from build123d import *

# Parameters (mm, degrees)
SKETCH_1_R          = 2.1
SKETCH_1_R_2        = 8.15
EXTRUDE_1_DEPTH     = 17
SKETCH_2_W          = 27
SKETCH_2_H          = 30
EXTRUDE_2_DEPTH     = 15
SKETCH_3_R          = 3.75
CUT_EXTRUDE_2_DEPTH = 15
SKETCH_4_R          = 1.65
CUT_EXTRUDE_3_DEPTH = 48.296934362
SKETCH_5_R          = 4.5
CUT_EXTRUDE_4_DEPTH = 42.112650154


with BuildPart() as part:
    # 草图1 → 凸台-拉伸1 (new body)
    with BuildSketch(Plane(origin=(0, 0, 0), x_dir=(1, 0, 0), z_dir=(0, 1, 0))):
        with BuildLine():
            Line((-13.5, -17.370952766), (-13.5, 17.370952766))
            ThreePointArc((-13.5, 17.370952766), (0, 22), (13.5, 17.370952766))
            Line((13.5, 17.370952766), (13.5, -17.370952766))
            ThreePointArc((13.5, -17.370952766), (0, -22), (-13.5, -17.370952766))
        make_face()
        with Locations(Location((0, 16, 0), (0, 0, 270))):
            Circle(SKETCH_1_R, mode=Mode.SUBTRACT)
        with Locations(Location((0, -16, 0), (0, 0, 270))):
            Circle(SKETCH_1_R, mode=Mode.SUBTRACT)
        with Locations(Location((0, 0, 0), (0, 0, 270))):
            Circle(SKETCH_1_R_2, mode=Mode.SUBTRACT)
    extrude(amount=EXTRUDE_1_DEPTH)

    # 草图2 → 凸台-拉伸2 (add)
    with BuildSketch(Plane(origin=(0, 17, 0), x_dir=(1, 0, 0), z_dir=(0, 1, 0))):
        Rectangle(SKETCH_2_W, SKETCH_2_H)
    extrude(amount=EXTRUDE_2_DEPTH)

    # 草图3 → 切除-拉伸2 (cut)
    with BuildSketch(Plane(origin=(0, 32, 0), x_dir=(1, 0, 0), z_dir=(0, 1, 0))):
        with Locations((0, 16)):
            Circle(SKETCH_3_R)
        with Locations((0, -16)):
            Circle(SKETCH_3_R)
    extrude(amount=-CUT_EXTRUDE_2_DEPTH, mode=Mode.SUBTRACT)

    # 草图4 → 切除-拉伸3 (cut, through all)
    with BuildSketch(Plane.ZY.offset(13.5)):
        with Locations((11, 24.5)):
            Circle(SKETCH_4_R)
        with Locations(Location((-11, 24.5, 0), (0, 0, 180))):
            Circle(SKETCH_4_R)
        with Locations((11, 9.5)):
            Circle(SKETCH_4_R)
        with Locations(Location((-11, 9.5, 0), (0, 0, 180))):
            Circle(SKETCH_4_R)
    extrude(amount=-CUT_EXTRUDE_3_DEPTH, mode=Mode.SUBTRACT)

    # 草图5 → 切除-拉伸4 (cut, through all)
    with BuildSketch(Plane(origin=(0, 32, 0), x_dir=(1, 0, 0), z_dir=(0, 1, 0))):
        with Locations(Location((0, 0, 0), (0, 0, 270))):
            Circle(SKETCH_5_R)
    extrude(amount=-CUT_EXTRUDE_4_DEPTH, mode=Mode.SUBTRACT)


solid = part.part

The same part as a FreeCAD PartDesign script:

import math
import FreeCAD as App
import Part
import Sketcher
from FreeCAD import Vector
Q = App.Units.Quantity

doc = App.newDocument("Part")
body = doc.addObject("PartDesign::Body", "Body")

# Sketch on XZ plane
sketch1 = body.newObject("Sketcher::SketchObject", "Sketch")
sketch1.AttachmentSupport = (doc.getObject("XZ_Plane"), [""])
sketch1.MapMode = "FlatFace"
sketch1.addGeometry([
    Part.LineSegment(Vector(-13.5, -17.4, 0), Vector(-13.5, 17.4, 0)),  # 0
    Part.ArcOfCircle(Part.Circle(Vector(0, 0, 0), Vector(0, 0, 1), 22), math.radians(52), math.radians(128)),  # 1
    Part.LineSegment(Vector(13.5, 17.4, 0), Vector(13.5, -17.4, 0)),  # 2
    Part.ArcOfCircle(Part.Circle(Vector(0, 0, 0), Vector(0, 0, 1), 22), math.radians(-128), math.radians(-52)),  # 3
    Part.Circle(Vector(0, 16, 0), Vector(0, 0, 1), 2.1),  # 4
    Part.Circle(Vector(0, 0, 0), Vector(0, 0, 1), 8.2),  # 5
    Part.Circle(Vector(0, -16, 0), Vector(0, 0, 1), 2.1),  # 6
], False)
sketch1.addConstraint([
    Sketcher.Constraint("Coincident", 0, 2, 1, 2),
    Sketcher.Constraint("Coincident", 1, 1, 2, 1),
    Sketcher.Constraint("Coincident", 2, 2, 3, 2),
    Sketcher.Constraint("Coincident", 3, 1, 0, 1),
    Sketcher.Constraint("Vertical", 0),
    Sketcher.Constraint("Vertical", 2),
    Sketcher.Constraint("Coincident", 1, 3, -1, 1),
    Sketcher.Constraint("Coincident", 3, 3, -1, 1),
    Sketcher.Constraint("Coincident", 5, 3, -1, 1),
    Sketcher.Constraint("Equal", 1, 3),
    Sketcher.Constraint("Equal", 4, 6),
    Sketcher.Constraint("Symmetric", 4, 3, 6, 3, -1, 1),
    Sketcher.Constraint("PointOnObject", 4, 3, -2),
    Sketcher.Constraint("Horizontal", 0, 2, 1, 1),
    Sketcher.Constraint("Radius", 1, Q("22 mm")),
    Sketcher.Constraint("Diameter", 4, Q("4.2 mm")),
    Sketcher.Constraint("Diameter", 5, Q("16.3 mm")),
    Sketcher.Constraint("DistanceY", -1, 1, 4, 3, Q("16 mm")),
    Sketcher.Constraint("DistanceX", 0, 2, 1, 1, Q("27 mm")),
])
pad1 = body.newObject("PartDesign::Pad", "Pad")
pad1.Profile = sketch1
pad1.Length = 17
pad1.Reversed = True

# Sketch on XZ plane
sketch2 = body.newObject("Sketcher::SketchObject", "Sketch001")
sketch2.AttachmentSupport = (doc.getObject("XZ_Plane"), [""])
sketch2.MapMode = "FlatFace"
sketch2.AttachmentOffset = App.Placement(Vector(0, 0, -17), App.Rotation())
sketch2.addGeometry([
    Part.LineSegment(Vector(-14, -15, 0), Vector(-14, 15, 0)),
    Part.LineSegment(Vector(-14, 15, 0), Vector(14, 15, 0)),
    Part.LineSegment(Vector(14, 15, 0), Vector(14, -15, 0)),
    Part.LineSegment(Vector(14, -15, 0), Vector(-14, -15, 0)),
], False)
sketch2.addConstraint([
    Sketcher.Constraint("Coincident", 0, 2, 1, 1),
    Sketcher.Constraint("Coincident", 1, 2, 2, 1),
    Sketcher.Constraint("Coincident", 2, 2, 3, 1),
    Sketcher.Constraint("Coincident", 3, 2, 0, 1),
    Sketcher.Constraint("Vertical", 0),
    Sketcher.Constraint("Horizontal", 1),
    Sketcher.Constraint("Vertical", 2),
    Sketcher.Constraint("Horizontal", 3),
    Sketcher.Constraint("Symmetric", 0, 2, 2, 2, -1, 1),
    Sketcher.Constraint("DistanceX", 1, 1, 1, 2, Q("27 mm")),
    Sketcher.Constraint("DistanceY", 0, 1, 0, 2, Q("30 mm")),
])
pad2 = body.newObject("PartDesign::Pad", "Pad001")
pad2.Profile = sketch2
pad2.Length = 15
pad2.Reversed = True

# Sketch on XZ plane
sketch3 = body.newObject("Sketcher::SketchObject", "Sketch002")
sketch3.AttachmentSupport = (doc.getObject("XZ_Plane"), [""])
sketch3.MapMode = "FlatFace"
sketch3.AttachmentOffset = App.Placement(Vector(0, 0, -32), App.Rotation())
sketch3.addGeometry([
    Part.Circle(Vector(0, -16, 0), Vector(0, 0, 1), 3.8),
    Part.Circle(Vector(0, 16, 0), Vector(0, 0, 1), 3.8),
], False)
sketch3.addConstraint([
    Sketcher.Constraint("Equal", 0, 1),
    Sketcher.Constraint("Symmetric", 0, 3, 1, 3, -1, 1),
    Sketcher.Constraint("PointOnObject", 0, 3, -2),
    Sketcher.Constraint("Diameter", 0, Q("7.5 mm")),
    Sketcher.Constraint("DistanceY", 0, 3, -1, 1, Q("16 mm")),
])
pocket1 = body.newObject("PartDesign::Pocket", "Pocket")
pocket1.Profile = sketch3
pocket1.Length = 15
pocket1.Reversed = True

# Sketch on YZ plane
sketch4 = body.newObject("Sketcher::SketchObject", "Sketch003")
sketch4.AttachmentSupport = (doc.getObject("YZ_Plane"), [""])
sketch4.MapMode = "FlatFace"
sketch4.AttachmentOffset = App.Placement(Vector(0, 0, -13.5), App.Rotation())
sketch4.addGeometry([
    Part.Circle(Vector(24.5, 11, 0), Vector(0, 0, 1), 1.6),
    Part.Circle(Vector(24.5, -11, 0), Vector(0, 0, 1), 1.6),
    Part.Circle(Vector(9.5, 11, 0), Vector(0, 0, 1), 1.6),
    Part.Circle(Vector(9.5, -11, 0), Vector(0, 0, 1), 1.6),
], False)
sketch4.addConstraint([
    Sketcher.Constraint("Equal", 0, 1),
    Sketcher.Constraint("Equal", 1, 2),
    Sketcher.Constraint("Equal", 2, 3),
    Sketcher.Constraint("Symmetric", 0, 3, 1, 3, -1),
    Sketcher.Constraint("Symmetric", 2, 3, 3, 3, -1),
    Sketcher.Constraint("Horizontal", 0, 3, 2, 3),
    Sketcher.Constraint("Diameter", 0, Q("3.3 mm")),
    Sketcher.Constraint("DistanceY", -1, 1, 0, 3, Q("11 mm")),
    Sketcher.Constraint("DistanceX", 2, 3, 0, 3, Q("15 mm")),
    Sketcher.Constraint("DistanceX", -1, 1, 0, 3, Q("24.5 mm")),
])
pocket2 = body.newObject("PartDesign::Pocket", "Pocket001")
pocket2.Profile = sketch4
pocket2.Type = "ThroughAll"
pocket2.Reversed = True

# Sketch on XZ plane
sketch5 = body.newObject("Sketcher::SketchObject", "Sketch004")
sketch5.AttachmentSupport = (doc.getObject("XZ_Plane"), [""])
sketch5.MapMode = "FlatFace"
sketch5.AttachmentOffset = App.Placement(Vector(0, 0, -32), App.Rotation())
sketch5.addGeometry(Part.Circle(Vector(0, 0, 0), Vector(0, 0, 1), 4.5), False)
sketch5.addConstraint([
    Sketcher.Constraint("Coincident", 0, 3, -1, 1),
    Sketcher.Constraint("Diameter", 0, Q("9 mm")),
])
pocket3 = body.newObject("PartDesign::Pocket", "Pocket002")
pocket3.Profile = sketch5
pocket3.Type = "ThroughAll"
pocket3.Reversed = True

doc.recompute()
